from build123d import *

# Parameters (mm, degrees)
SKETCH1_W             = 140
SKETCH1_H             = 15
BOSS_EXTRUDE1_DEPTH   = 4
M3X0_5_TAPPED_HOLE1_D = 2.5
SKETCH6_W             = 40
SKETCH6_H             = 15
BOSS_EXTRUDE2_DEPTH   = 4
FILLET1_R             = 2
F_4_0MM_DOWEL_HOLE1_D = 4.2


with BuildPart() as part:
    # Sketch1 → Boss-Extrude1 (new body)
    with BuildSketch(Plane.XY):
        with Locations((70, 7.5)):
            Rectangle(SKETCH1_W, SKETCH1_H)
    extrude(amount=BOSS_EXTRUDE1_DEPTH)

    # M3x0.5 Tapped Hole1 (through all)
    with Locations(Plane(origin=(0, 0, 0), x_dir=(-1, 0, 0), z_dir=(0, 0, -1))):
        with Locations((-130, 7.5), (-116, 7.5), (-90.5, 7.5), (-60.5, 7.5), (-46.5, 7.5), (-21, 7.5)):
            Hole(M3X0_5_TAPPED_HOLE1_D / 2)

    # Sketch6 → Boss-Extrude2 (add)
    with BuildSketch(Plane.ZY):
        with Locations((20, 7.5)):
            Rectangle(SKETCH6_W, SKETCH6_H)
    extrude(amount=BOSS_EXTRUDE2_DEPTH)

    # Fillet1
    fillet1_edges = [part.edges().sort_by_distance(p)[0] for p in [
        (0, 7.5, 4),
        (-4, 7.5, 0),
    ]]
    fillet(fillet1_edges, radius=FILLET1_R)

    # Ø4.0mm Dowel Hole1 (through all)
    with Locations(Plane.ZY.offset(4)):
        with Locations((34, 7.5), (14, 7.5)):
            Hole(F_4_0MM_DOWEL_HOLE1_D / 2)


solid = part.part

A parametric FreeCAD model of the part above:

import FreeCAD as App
import Part
import Sketcher

V = App.Vector


def edges_at(feature, points):
    """Names of the edges that pass closest to the given points."""
    edges = feature.Shape.Edges
    near = lambda p: min(range(len(edges)), key=lambda i: edges[i].distToShape(Part.Vertex(*p))[0])
    return sorted({f"Edge{near(p) + 1}" for p in points})

doc = App.newDocument("Part")
params = doc.addObject("Spreadsheet::Sheet", "Params")
for row, (alias, value) in enumerate([
    ("sketch1_width", "140 mm"),
    ("sketch1_height", "15 mm"),
    ("pad1_length", "4 mm"),
    ("sketch2_diameter", "2.5 mm"),
    ("hole_diameter", "2.5 mm"),
    ("sketch3_width", "15 mm"),
    ("sketch3_height", "40 mm"),
    ("pad2_length", "4 mm"),
    ("fillet_radius", "2 mm"),
    ("sketch4_diameter", "4.2 mm"),
    ("hole2_diameter", "4.2 mm"),
], start=1):
    params.set(f"A{row}", alias)
    params.set(f"B{row}", "=" + value)
    params.setAlias(f"B{row}", alias)

body = doc.addObject("PartDesign::Body", "Body")

sketch1 = body.newObject("Sketcher::SketchObject", "Sketch")
sketch1.AttachmentSupport = (doc.getObject("XY_Plane"), [""])
sketch1.MapMode = "FlatFace"
sketch1.addGeometry(Part.LineSegment(V(0, 15, 0), V(0, 0, 0)), False)
sketch1.addGeometry(Part.LineSegment(V(0, 0, 0), V(140, 0, 0)), False)
sketch1.addGeometry(Part.LineSegment(V(140, 0, 0), V(140, 15, 0)), False)
sketch1.addGeometry(Part.LineSegment(V(140, 15, 0), V(0, 15, 0)), False)
sketch1.addConstraint(Sketcher.Constraint("Coincident", 0, 2, 1, 1))
sketch1.addConstraint(Sketcher.Constraint("Coincident", 1, 2, 2, 1))
sketch1.addConstraint(Sketcher.Constraint("Coincident", 2, 2, 3, 1))
sketch1.addConstraint(Sketcher.Constraint("Coincident", 3, 2, 0, 1))
sketch1.addConstraint(Sketcher.Constraint("Vertical", 0))
sketch1.addConstraint(Sketcher.Constraint("Horizontal", 1))
sketch1.addConstraint(Sketcher.Constraint("Vertical", 2))
sketch1.addConstraint(Sketcher.Constraint("Horizontal", 3))
sketch1.addConstraint(Sketcher.Constraint("Coincident", 0, 2, -1, 1))
sketch1.addConstraint(Sketcher.Constraint("DistanceX", 1, 1, 1, 2, 140.0))
sketch1.addConstraint(Sketcher.Constraint("DistanceY", 0, 2, 0, 1, 15.0))
sketch1.setExpression("Constraints[9]", "Params.sketch1_width")
sketch1.setExpression("Constraints[10]", "Params.sketch1_height")
pad1 = body.newObject("PartDesign::Pad", "Pad")
pad1.Profile = sketch1
pad1.setExpression("Length", "Params.pad1_length")

sketch2 = body.newObject("Sketcher::SketchObject", "Sketch001")
sketch2.AttachmentSupport = (doc.getObject("XY_Plane"), [""])
sketch2.MapMode = "FlatFace"
sketch2.addGeometry(Part.Circle(V(130, 7.5, 0), V(0, 0, 1), 1.25), False)
sketch2.addGeometry(Part.Circle(V(116, 7.5, 0), V(0, 0, 1), 1.25), False)
sketch2.addGeometry(Part.Circle(V(90.5, 7.5, 0), V(0, 0, 1), 1.25), False)
sketch2.addGeometry(Part.Circle(V(60.5, 7.5, 0), V(0, 0, 1), 1.25), False)
sketch2.addGeometry(Part.Circle(V(46.5, 7.5, 0), V(0, 0, 1), 1.25), False)
sketch2.addGeometry(Part.Circle(V(21, 7.5, 0), V(0, 0, 1), 1.25), False)
sketch2.addConstraint(Sketcher.Constraint("Equal", 0, 1))
sketch2.addConstraint(Sketcher.Constraint("Equal", 1, 2))
sketch2.addConstraint(Sketcher.Constraint("Equal", 2, 3))
sketch2.addConstraint(Sketcher.Constraint("Equal", 3, 4))
sketch2.addConstraint(Sketcher.Constraint("Equal", 4, 5))
sketch2.addConstraint(Sketcher.Constraint("Horizontal", 0, 3, 1, 3))
sketch2.addConstraint(Sketcher.Constraint("Horizontal", 1, 3, 2, 3))
sketch2.addConstraint(Sketcher.Constraint("Horizontal", 2, 3, 3, 3))
sketch2.addConstraint(Sketcher.Constraint("Horizontal", 3, 3, 4, 3))
sketch2.addConstraint(Sketcher.Constraint("Horizontal", 4, 3, 5, 3))
sketch2.addConstraint(Sketcher.Constraint("Diameter", 0, 2.5))
sketch2.addConstraint(Sketcher.Constraint("DistanceX", -1, 1, 0, 3, 130.0))
sketch2.addConstraint(Sketcher.Constraint("DistanceX", -1, 1, 1, 3, 116.0))
sketch2.addConstraint(Sketcher.Constraint("DistanceX", -1, 1, 5, 3, 21.0))
sketch2.addConstraint(Sketcher.Constraint("DistanceX", 3, 3, 2, 3, 30.0))
sketch2.addConstraint(Sketcher.Constraint("DistanceX", 4, 3, 3, 3, 14.0))
sketch2.addConstraint(Sketcher.Constraint("DistanceY", -1, 1, 0, 3, 7.5))
sketch2.addConstraint(Sketcher.Constraint("DistanceX", -1, 1, 2, 3, 90.5))
sketch2.setExpression("Constraints[10]", "Params.sketch2_diameter")
doc.recompute()
hole = body.newObject("PartDesign::Hole", "Hole")
hole.Profile = sketch2
hole.ThreadType = "None"
hole.setExpression("Diameter", "Params.hole_diameter")
hole.DepthType = "ThroughAll"
hole.Reversed = True

sketch3 = body.newObject("Sketcher::SketchObject", "Sketch002")
sketch3.AttachmentSupport = (doc.getObject("YZ_Plane"), [""])
sketch3.MapMode = "FlatFace"
sketch3.addGeometry(Part.LineSegment(V(15, 0, 0), V(0, 0, 0)), False)
sketch3.addGeometry(Part.LineSegment(V(0, 0, 0), V(0, 40, 0)), False)
sketch3.addGeometry(Part.LineSegment(V(0, 40, 0), V(15, 40, 0)), False)
sketch3.addGeometry(Part.LineSegment(V(15, 40, 0), V(15, 0, 0)), False)
sketch3.addConstraint(Sketcher.Constraint("Coincident", 0, 2, 1, 1))
sketch3.addConstraint(Sketcher.Constraint("Coincident", 1, 2, 2, 1))
sketch3.addConstraint(Sketcher.Constraint("Coincident", 2, 2, 3, 1))
sketch3.addConstraint(Sketcher.Constraint("Coincident", 3, 2, 0, 1))
sketch3.addConstraint(Sketcher.Constraint("Horizontal", 0))
sketch3.addConstraint(Sketcher.Constraint("Vertical", 1))
sketch3.addConstraint(Sketcher.Constraint("Horizontal", 2))
sketch3.addConstraint(Sketcher.Constraint("Vertical", 3))
sketch3.addConstraint(Sketcher.Constraint("Coincident", 0, 2, -1, 1))
sketch3.addConstraint(Sketcher.Constraint("DistanceX", 0, 2, 0, 1, 15.0))
sketch3.addConstraint(Sketcher.Constraint("DistanceY", 1, 1, 1, 2, 40.0))
sketch3.setExpression("Constraints[9]", "Params.sketch3_width")
sketch3.setExpression("Constraints[10]", "Params.sketch3_height")
pad2 = body.newObject("PartDesign::Pad", "Pad001")
pad2.Profile = sketch3
pad2.setExpression("Length", "Params.pad2_length")
pad2.Reversed = True
doc.recompute()

fillet = body.newObject("PartDesign::Fillet", "Fillet")
fillet.Base = (pad2, edges_at(pad2, [(0, 7.5, 4), (-4, 7.5, 0)]))
fillet.setExpression("Radius", "Params.fillet_radius")

sketch4 = body.newObject("Sketcher::SketchObject", "Sketch003")
sketch4.AttachmentSupport = (doc.getObject("YZ_Plane"), [""])
sketch4.MapMode = "FlatFace"
sketch4.AttachmentOffset = App.Placement(V(0, 0, -4), App.Rotation())
sketch4.addGeometry(Part.Circle(V(7.5, 34, 0), V(0, 0, 1), 2.1), False)
sketch4.addGeometry(Part.Circle(V(7.5, 14, 0), V(0, 0, 1), 2.1), False)
sketch4.addConstraint(Sketcher.Constraint("Equal", 0, 1))
sketch4.addConstraint(Sketcher.Constraint("Vertical", 0, 3, 1, 3))
sketch4.addConstraint(Sketcher.Constraint("Diameter", 0, 4.2))
sketch4.addConstraint(Sketcher.Constraint("DistanceY", -1, 1, 0, 3, 34.0))
sketch4.addConstraint(Sketcher.Constraint("DistanceY", -1, 1, 1, 3, 14.0))
sketch4.addConstraint(Sketcher.Constraint("DistanceX", -1, 1, 0, 3, 7.5))
sketch4.setExpression("Constraints[2]", "Params.sketch4_diameter")
doc.recompute()
hole2 = body.newObject("PartDesign::Hole", "Hole001")
hole2.Profile = sketch4
hole2.ThreadType = "None"
hole2.setExpression("Diameter", "Params.hole2_diameter")
hole2.DepthType = "ThroughAll"
hole2.Reversed = True

doc.recompute()
